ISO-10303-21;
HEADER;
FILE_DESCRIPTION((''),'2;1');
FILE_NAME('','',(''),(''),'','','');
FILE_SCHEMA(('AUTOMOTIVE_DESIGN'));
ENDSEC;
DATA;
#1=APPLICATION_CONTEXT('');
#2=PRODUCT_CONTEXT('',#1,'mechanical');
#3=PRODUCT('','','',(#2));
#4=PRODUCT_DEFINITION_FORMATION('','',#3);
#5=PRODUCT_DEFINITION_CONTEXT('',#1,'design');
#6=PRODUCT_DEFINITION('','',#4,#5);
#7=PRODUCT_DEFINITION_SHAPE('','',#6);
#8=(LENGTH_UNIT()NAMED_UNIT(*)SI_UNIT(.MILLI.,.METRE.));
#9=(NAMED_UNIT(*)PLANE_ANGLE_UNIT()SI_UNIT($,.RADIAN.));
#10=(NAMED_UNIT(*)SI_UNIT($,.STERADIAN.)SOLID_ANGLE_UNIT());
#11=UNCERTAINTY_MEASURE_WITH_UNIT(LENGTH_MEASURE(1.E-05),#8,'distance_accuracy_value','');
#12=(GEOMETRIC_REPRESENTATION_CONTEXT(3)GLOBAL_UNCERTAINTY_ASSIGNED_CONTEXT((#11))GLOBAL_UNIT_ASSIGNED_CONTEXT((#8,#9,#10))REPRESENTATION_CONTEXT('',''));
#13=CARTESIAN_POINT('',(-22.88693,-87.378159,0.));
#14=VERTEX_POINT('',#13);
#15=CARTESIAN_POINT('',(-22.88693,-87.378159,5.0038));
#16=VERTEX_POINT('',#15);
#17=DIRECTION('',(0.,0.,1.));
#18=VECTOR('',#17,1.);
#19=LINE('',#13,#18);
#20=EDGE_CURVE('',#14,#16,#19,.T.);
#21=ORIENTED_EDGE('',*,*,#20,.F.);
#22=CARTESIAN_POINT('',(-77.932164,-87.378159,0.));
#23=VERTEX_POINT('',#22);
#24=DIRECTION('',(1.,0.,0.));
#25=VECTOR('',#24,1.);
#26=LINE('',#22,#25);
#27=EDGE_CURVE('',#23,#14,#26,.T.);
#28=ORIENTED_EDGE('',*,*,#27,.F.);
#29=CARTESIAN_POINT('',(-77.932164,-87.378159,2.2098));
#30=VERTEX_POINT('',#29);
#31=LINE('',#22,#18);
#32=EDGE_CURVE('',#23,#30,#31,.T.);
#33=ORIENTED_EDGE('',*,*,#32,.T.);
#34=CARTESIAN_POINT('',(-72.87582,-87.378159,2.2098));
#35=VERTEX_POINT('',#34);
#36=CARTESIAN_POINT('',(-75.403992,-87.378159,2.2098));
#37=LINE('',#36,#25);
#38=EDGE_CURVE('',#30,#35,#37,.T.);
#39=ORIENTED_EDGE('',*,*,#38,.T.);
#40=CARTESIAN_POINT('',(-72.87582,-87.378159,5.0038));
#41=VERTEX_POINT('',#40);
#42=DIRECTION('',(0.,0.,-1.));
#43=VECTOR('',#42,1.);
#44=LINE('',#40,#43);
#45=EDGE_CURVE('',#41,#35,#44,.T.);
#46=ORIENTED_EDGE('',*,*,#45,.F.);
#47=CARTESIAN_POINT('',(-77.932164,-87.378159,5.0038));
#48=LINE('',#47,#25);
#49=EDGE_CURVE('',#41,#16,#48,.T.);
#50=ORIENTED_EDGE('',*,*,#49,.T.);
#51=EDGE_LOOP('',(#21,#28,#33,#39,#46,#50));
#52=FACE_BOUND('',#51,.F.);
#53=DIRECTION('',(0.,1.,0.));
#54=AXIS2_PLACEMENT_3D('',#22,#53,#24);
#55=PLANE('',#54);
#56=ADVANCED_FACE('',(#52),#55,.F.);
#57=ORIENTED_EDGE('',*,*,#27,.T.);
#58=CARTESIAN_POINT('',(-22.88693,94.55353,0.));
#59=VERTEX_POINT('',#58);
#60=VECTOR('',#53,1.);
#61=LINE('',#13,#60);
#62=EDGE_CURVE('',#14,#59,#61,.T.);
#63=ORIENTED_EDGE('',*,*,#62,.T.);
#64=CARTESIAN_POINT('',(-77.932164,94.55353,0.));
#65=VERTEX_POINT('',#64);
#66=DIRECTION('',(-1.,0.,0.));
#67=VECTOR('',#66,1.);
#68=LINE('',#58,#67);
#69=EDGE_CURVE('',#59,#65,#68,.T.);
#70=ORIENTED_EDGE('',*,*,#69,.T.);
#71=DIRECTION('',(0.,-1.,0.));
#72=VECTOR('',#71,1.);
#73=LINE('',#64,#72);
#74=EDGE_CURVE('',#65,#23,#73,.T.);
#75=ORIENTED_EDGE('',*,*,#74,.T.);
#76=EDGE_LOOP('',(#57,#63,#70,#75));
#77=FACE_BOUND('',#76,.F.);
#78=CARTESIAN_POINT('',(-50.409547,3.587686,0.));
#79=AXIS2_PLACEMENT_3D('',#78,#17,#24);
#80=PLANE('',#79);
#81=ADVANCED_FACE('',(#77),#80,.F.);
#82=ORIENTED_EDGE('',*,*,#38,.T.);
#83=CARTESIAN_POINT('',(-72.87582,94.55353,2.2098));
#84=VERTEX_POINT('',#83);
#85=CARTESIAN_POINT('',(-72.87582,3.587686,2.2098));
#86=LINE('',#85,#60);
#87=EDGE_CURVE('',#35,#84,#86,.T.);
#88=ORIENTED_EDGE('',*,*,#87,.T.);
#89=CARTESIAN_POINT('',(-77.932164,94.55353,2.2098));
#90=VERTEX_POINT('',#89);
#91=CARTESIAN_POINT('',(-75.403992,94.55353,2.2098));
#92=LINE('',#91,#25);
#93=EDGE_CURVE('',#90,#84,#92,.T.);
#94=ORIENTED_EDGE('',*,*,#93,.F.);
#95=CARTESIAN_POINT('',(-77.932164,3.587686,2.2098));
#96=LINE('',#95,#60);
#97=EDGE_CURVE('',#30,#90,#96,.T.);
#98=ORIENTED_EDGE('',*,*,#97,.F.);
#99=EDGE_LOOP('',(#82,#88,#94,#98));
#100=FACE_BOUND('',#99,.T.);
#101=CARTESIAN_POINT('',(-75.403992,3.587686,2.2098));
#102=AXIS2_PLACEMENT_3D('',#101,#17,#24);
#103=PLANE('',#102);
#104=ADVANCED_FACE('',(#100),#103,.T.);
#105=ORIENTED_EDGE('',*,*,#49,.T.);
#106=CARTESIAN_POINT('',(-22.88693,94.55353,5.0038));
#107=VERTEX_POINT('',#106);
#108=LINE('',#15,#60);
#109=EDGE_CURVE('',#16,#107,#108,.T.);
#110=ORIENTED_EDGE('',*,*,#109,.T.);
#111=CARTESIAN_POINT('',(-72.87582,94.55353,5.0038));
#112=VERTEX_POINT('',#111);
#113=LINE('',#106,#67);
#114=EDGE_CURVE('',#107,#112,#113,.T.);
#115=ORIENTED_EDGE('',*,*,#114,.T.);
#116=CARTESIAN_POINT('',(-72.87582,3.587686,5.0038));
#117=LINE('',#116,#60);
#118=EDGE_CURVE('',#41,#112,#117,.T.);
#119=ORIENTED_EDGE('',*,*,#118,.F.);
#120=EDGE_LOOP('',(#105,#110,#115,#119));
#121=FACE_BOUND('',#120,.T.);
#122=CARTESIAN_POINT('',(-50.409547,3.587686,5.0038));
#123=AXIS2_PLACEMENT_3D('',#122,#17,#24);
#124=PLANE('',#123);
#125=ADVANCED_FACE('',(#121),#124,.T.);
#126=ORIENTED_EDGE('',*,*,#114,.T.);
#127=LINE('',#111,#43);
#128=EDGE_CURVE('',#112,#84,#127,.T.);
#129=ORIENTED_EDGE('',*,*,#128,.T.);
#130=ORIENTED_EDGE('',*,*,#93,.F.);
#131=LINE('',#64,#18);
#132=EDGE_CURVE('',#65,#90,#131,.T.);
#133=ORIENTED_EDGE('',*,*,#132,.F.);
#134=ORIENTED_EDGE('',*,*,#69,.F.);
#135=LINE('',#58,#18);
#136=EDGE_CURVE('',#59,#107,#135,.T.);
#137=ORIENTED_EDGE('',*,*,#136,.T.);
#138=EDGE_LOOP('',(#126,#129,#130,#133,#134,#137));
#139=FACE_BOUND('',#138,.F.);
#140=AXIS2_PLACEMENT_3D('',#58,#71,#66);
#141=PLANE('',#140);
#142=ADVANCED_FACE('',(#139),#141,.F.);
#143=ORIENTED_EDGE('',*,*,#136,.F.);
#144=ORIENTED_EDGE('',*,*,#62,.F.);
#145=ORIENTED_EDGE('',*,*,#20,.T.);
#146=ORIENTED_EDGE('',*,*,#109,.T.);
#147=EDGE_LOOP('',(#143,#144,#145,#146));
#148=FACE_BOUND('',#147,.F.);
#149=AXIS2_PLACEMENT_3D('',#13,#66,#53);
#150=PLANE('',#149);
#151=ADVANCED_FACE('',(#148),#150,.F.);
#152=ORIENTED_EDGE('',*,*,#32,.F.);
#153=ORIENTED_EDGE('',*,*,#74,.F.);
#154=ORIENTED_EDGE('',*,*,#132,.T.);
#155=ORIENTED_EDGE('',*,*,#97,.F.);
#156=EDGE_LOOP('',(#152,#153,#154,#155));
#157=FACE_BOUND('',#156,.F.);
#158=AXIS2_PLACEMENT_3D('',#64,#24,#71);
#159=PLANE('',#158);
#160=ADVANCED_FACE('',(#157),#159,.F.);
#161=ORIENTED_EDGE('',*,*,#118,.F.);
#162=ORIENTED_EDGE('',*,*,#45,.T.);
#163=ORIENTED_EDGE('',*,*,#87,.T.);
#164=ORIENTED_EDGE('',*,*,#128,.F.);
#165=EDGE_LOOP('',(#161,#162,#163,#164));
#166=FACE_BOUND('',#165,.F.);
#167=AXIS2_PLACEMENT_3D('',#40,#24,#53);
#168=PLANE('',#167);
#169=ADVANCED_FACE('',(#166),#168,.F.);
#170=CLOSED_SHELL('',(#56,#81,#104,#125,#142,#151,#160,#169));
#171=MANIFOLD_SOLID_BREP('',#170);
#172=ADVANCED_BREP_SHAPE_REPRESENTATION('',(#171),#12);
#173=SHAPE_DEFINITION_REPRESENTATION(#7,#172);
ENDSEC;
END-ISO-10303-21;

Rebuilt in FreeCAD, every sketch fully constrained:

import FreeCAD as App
import Part
import Sketcher

V = App.Vector
Q = App.Units.Quantity

doc = App.newDocument("Part")
body = doc.addObject("PartDesign::Body", "Body")

sketch1 = body.newObject("Sketcher::SketchObject", "Sketch")
sketch1.AttachmentSupport = (doc.getObject("XY_Plane"), [""])
sketch1.MapMode = "FlatFace"
sketch1.addGeometry([
    Part.LineSegment(V(-78, 95, 0), V(-78, -87, 0)),
    Part.LineSegment(V(-78, -87, 0), V(-23, -87, 0)),
    Part.LineSegment(V(-23, -87, 0), V(-23, 95, 0)),
    Part.LineSegment(V(-23, 95, 0), V(-78, 95, 0)),
], False)
sketch1.addConstraint([
    Sketcher.Constraint("Coincident", 0, 2, 1, 1),
    Sketcher.Constraint("Coincident", 1, 2, 2, 1),
    Sketcher.Constraint("Coincident", 2, 2, 3, 1),
    Sketcher.Constraint("Coincident", 3, 2, 0, 1),
    Sketcher.Constraint("Vertical", 0),
    Sketcher.Constraint("Horizontal", 1),
    Sketcher.Constraint("Vertical", 2),
    Sketcher.Constraint("Horizontal", 3),
    Sketcher.Constraint("DistanceY", 0, 2, 0, 1, 181.931689),
    Sketcher.Constraint("DistanceX", 1, 1, 1, 2, 55.045234),
    Sketcher.Constraint("DistanceY", 0, 2, -1, 1, 87.378159),
    Sketcher.Constraint("DistanceX", 1, 2, -1, 1, 22.88693),
])
pad1 = body.newObject("PartDesign::Pad", "Pad")
pad1.Profile = sketch1
pad1.Length = Q("0.197 in")

sketch2 = body.newObject("Sketcher::SketchObject", "Sketch001")
sketch2.AttachmentSupport = (doc.getObject("XY_Plane"), [""])
sketch2.MapMode = "FlatFace"
sketch2.AttachmentOffset = App.Placement(V(0, 0, 0.197 * 25.4), App.Rotation())
sketch2.addGeometry([
    Part.LineSegment(V(-78, 95, 0), V(-78, -87, 0)),
    Part.LineSegment(V(-78, -87, 0), V(-73, -87, 0)),
    Part.LineSegment(V(-73, -87, 0), V(-73, 95, 0)),
    Part.LineSegment(V(-73, 95, 0), V(-78, 95, 0)),
], False)
sketch2.addConstraint([
    Sketcher.Constraint("Coincident", 0, 2, 1, 1),
    Sketcher.Constraint("Coincident", 1, 2, 2, 1),
    Sketcher.Constraint("Coincident", 2, 2, 3, 1),
    Sketcher.Constraint("Coincident", 3, 2, 0, 1),
    Sketcher.Constraint("Vertical", 0),
    Sketcher.Constraint("Horizontal", 1),
    Sketcher.Constraint("Vertical", 2),
    Sketcher.Constraint("Horizontal", 3),
    Sketcher.Constraint("DistanceY", 0, 2, 0, 1, 181.931689),
    Sketcher.Constraint("DistanceX", 1, 1, 1, 2, 5.056344),
    Sketcher.Constraint("DistanceY", 0, 2, -1, 1, 87.378159),
    Sketcher.Constraint("DistanceX", 1, 2, -1, 1, 72.87582),
])
pocket1 = body.newObject("PartDesign::Pocket", "Pocket")
pocket1.Profile = sketch2
pocket1.Length = Q("0.11 in")

doc.recompute()
